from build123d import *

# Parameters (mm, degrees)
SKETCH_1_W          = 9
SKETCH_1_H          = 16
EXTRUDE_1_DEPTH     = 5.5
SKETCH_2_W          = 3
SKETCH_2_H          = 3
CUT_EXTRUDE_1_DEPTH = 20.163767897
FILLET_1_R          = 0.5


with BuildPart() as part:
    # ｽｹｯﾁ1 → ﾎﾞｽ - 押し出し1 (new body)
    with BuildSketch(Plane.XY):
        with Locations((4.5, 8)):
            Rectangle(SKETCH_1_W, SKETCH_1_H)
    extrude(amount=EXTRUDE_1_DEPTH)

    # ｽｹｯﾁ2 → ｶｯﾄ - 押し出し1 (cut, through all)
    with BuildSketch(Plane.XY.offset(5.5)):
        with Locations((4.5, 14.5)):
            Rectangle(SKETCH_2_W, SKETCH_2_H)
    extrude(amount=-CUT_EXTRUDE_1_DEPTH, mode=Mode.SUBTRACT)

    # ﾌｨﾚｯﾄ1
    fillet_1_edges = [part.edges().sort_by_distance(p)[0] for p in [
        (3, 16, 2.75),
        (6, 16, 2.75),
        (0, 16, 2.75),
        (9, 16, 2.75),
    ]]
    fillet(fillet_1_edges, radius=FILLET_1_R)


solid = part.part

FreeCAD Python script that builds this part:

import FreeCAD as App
import Part
import Sketcher
from FreeCAD import Vector
Q = App.Units.Quantity


def edges_at(feature, points):
    """Names of the edges that pass closest to the given points."""
    edges = feature.Shape.Edges
    near = lambda p: min(range(len(edges)), key=lambda i: edges[i].distToShape(Part.Vertex(*p))[0])
    return sorted({f"Edge{near(p) + 1}" for p in points})

doc = App.newDocument("Part")
params = doc.addObject("Spreadsheet::Sheet", "Params")
for row, (alias, value) in enumerate([
    ("sketch1_width", "9 mm"),
    ("sketch1_height", "16 mm"),
    ("pad1_length", "5.5 mm"),
    ("sketch2_width", "3 mm"),
    ("fillet_radius", "0.5 mm"),
], start=1):
    params.set(f"A{row}", alias)
    params.set(f"B{row}", "=" + value)
    params.setAlias(f"B{row}", alias)

body = doc.addObject("PartDesign::Body", "Body")

# Sketch on XY plane
sketch1 = body.newObject("Sketcher::SketchObject", "Sketch")
sketch1.AttachmentSupport = (doc.getObject("XY_Plane"), [""])
sketch1.MapMode = "FlatFace"
sketch1.addGeometry([
    Part.LineSegment(Vector(0, 16, 0), Vector(0, 0, 0)),
    Part.LineSegment(Vector(0, 0, 0), Vector(9, 0, 0)),
    Part.LineSegment(Vector(9, 0, 0), Vector(9, 16, 0)),
    Part.LineSegment(Vector(9, 16, 0), Vector(0, 16, 0)),
], False)
sketch1.addConstraint([
    Sketcher.Constraint("Coincident", 0, 2, 1, 1),
    Sketcher.Constraint("Coincident", 1, 2, 2, 1),
    Sketcher.Constraint("Coincident", 2, 2, 3, 1),
    Sketcher.Constraint("Coincident", 3, 2, 0, 1),
    Sketcher.Constraint("Vertical", 0),
    Sketcher.Constraint("Horizontal", 1),
    Sketcher.Constraint("Vertical", 2),
    Sketcher.Constraint("Horizontal", 3),
    Sketcher.Constraint("Coincident", 0, 2, -1, 1),
    Sketcher.Constraint("DistanceX", 1, 1, 1, 2, Q("9 mm")),
    Sketcher.Constraint("DistanceY", 0, 2, 0, 1, Q("16 mm")),
])
sketch1.setExpression("Constraints[9]", "Params.sketch1_width")
sketch1.setExpression("Constraints[10]", "Params.sketch1_height")
pad1 = body.newObject("PartDesign::Pad", "Pad")
pad1.Profile = sketch1
pad1.setExpression("Length", "Params.pad1_length")

# Sketch on XY plane
sketch2 = body.newObject("Sketcher::SketchObject", "Sketch001")
sketch2.AttachmentSupport = (doc.getObject("XY_Plane"), [""])
sketch2.MapMode = "FlatFace"
sketch2.AttachmentOffset = App.Placement(Vector(0, 0, 5.5), App.Rotation())
sketch2.addGeometry([
    Part.LineSegment(Vector(3, 16, 0), Vector(3, 13, 0)),
    Part.LineSegment(Vector(3, 13, 0), Vector(6, 13, 0)),
    Part.LineSegment(Vector(6, 13, 0), Vector(6, 16, 0)),
    Part.LineSegment(Vector(6, 16, 0), Vector(3, 16, 0)),
], False)
sketch2.addConstraint([
    Sketcher.Constraint("Coincident", 0, 2, 1, 1),
    Sketcher.Constraint("Coincident", 1, 2, 2, 1),
    Sketcher.Constraint("Coincident", 2, 2, 3, 1),
    Sketcher.Constraint("Coincident", 3, 2, 0, 1),
    Sketcher.Constraint("Vertical", 0),
    Sketcher.Constraint("Horizontal", 1),
    Sketcher.Constraint("Vertical", 2),
    Sketcher.Constraint("Horizontal", 3),
    Sketcher.Constraint("Equal", 3, 0),
    Sketcher.Constraint("DistanceX", 1, 1, 1, 2, Q("3 mm")),
    Sketcher.Constraint("DistanceX", -1, 1, 0, 2, Q("3 mm")),
    Sketcher.Constraint("DistanceY", -1, 1, 0, 2, Q("13 mm")),
])
sketch2.setExpression("Constraints[9]", "Params.sketch2_width")
pocket1 = body.newObject("PartDesign::Pocket", "Pocket")
pocket1.Profile = sketch2
pocket1.Type = "ThroughAll"
doc.recompute()

fillet = body.newObject("PartDesign::Fillet", "Fillet")
fillet.Base = (pocket1, edges_at(pocket1, [
    (3, 16, 2.75),
    (6, 16, 2.75),
    (0, 16, 2.75),
    (9, 16, 2.75),
]))
fillet.setExpression("Radius", "Params.fillet_radius")

doc.recompute()
